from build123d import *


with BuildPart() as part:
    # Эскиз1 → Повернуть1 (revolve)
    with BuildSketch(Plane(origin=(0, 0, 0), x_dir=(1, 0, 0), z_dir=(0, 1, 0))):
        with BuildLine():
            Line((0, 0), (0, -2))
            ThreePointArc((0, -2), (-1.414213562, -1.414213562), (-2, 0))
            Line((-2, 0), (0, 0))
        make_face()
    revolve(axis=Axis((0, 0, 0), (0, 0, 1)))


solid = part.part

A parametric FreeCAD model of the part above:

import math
import FreeCAD as App
import Part
import Sketcher
from FreeCAD import Vector
Q = App.Units.Quantity

doc = App.newDocument("Part")
body = doc.addObject("PartDesign::Body", "Body")

# Sketch on XZ plane
sketch1 = body.newObject("Sketcher::SketchObject", "Sketch")
sketch1.AttachmentSupport = (doc.getObject("XZ_Plane"), [""])
sketch1.MapMode = "FlatFace"
sketch1.addGeometry(Part.LineSegment(Vector(0, 2, 0), Vector(0, 0, 0)), False)
sketch1.addGeometry(Part.LineSegment(Vector(0, 0, 0), Vector(-2, 0, 0)), False)
sketch1.addGeometry(Part.ArcOfCircle(Part.Circle(Vector(0, 0, 0), Vector(0, 0, 1), 2), math.radians(90), math.radians(180)), False)
sketch1.addConstraint(Sketcher.Constraint("Coincident", 0, 2, 1, 1))
sketch1.addConstraint(Sketcher.Constraint("Coincident", 1, 2, 2, 2))
sketch1.addConstraint(Sketcher.Constraint("Coincident", 2, 1, 0, 1))
sketch1.addConstraint(Sketcher.Constraint("Vertical", 0))
sketch1.addConstraint(Sketcher.Constraint("Horizontal", 1))
sketch1.addConstraint(Sketcher.Constraint("Coincident", 2, 3, -1, 1))
sketch1.addConstraint(Sketcher.Constraint("Coincident", 0, 2, -1, 1))
sketch1.addConstraint(Sketcher.Constraint("Radius", 2, Q("2 mm")))
revolution = body.newObject("PartDesign::Revolution", "Revolution")
revolution.Profile = sketch1
revolution.ReferenceAxis = (sketch1, ["V_Axis"])
revolution.Angle = 360

doc.recompute()
